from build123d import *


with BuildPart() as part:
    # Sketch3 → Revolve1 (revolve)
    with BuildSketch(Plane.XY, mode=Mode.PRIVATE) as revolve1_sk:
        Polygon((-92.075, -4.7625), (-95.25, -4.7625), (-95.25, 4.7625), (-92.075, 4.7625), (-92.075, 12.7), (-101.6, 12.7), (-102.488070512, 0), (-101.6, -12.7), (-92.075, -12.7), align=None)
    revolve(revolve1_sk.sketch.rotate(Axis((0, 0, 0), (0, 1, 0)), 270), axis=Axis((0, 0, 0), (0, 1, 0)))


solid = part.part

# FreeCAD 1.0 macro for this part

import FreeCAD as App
import Part
import Sketcher
Q = App.Units.Quantity

doc = App.newDocument("Part")
params = doc.addObject("Spreadsheet::Sheet", "Params")
for row, (alias, value) in enumerate([
    ("sketch1_width", "0.125 in"),
    ("sketch1_width2", "0.375 in"),
    ("revolution_angle", "360 deg"),
], start=1):
    params.set(f"A{row}", alias)
    params.set(f"B{row}", "=" + value)
    params.setAlias(f"B{row}", alias)

body = doc.addObject("PartDesign::Body", "Body")

sketch1 = body.newObject("Sketcher::SketchObject", "Sketch")
sketch1.AttachmentSupport = (doc.getObject("XY_Plane"), [""])
sketch1.MapMode = "FlatFace"
sketch1.addGeometry(Part.LineSegment(App.Vector(-92.075, -4.7625, 0), App.Vector(-95.25, -4.7625, 0)), False)
sketch1.addGeometry(Part.LineSegment(App.Vector(-95.25, -4.7625, 0), App.Vector(-95.25, 4.7625, 0)), False)
sketch1.addGeometry(Part.LineSegment(App.Vector(-95.25, 4.7625, 0), App.Vector(-92.075, 4.7625, 0)), False)
sketch1.addGeometry(Part.LineSegment(App.Vector(-92.075, 4.7625, 0), App.Vector(-92.075, 12.7, 0)), False)
sketch1.addGeometry(Part.LineSegment(App.Vector(-92.075, 12.7, 0), App.Vector(-101.6, 12.7, 0)), False)
sketch1.addGeometry(Part.LineSegment(App.Vector(-101.6, 12.7, 0), App.Vector(-102.488071, 0, 0)), False)
sketch1.addGeometry(Part.LineSegment(App.Vector(-102.488071, 0, 0), App.Vector(-101.6, -12.7, 0)), False)
sketch1.addGeometry(Part.LineSegment(App.Vector(-101.6, -12.7, 0), App.Vector(-92.075, -12.7, 0)), False)
sketch1.addGeometry(Part.LineSegment(App.Vector(-92.075, -12.7, 0), App.Vector(-92.075, -4.7625, 0)), False)
sketch1.addConstraint(Sketcher.Constraint("Coincident", 0, 2, 1, 1))
sketch1.addConstraint(Sketcher.Constraint("Coincident", 1, 2, 2, 1))
sketch1.addConstraint(Sketcher.Constraint("Coincident", 2, 2, 3, 1))
sketch1.addConstraint(Sketcher.Constraint("Coincident", 3, 2, 4, 1))
sketch1.addConstraint(Sketcher.Constraint("Coincident", 4, 2, 5, 1))
sketch1.addConstraint(Sketcher.Constraint("Coincident", 5, 2, 6, 1))
sketch1.addConstraint(Sketcher.Constraint("Coincident", 6, 2, 7, 1))
sketch1.addConstraint(Sketcher.Constraint("Coincident", 7, 2, 8, 1))
sketch1.addConstraint(Sketcher.Constraint("Coincident", 8, 2, 0, 1))
sketch1.addConstraint(Sketcher.Constraint("Horizontal", 0))
sketch1.addConstraint(Sketcher.Constraint("Vertical", 1))
sketch1.addConstraint(Sketcher.Constraint("Horizontal", 2))
sketch1.addConstraint(Sketcher.Constraint("Vertical", 3))
sketch1.addConstraint(Sketcher.Constraint("Horizontal", 4))
sketch1.addConstraint(Sketcher.Constraint("Horizontal", 7))
sketch1.addConstraint(Sketcher.Constraint("Vertical", 8))
sketch1.addConstraint(Sketcher.Constraint("Symmetric", 4, 2, 6, 2, -1))
sketch1.addConstraint(Sketcher.Constraint("Symmetric", 2, 2, 8, 2, -1))
sketch1.addConstraint(Sketcher.Constraint("PointOnObject", 5, 2, -1))
sketch1.addConstraint(Sketcher.Constraint("Equal", 7, 1))
sketch1.addConstraint(Sketcher.Constraint("DistanceX", 4, 2, -1, 1, Q("4 in")))
sketch1.addConstraint(Sketcher.Constraint("Angle", 5, Q("-94 deg")))
sketch1.addConstraint(Sketcher.Constraint("DistanceY", 6, 2, 4, 2, Q("1 in")))
sketch1.addConstraint(Sketcher.Constraint("DistanceX", 0, 2, 0, 1, Q("0.125 in")))
sketch1.addConstraint(Sketcher.Constraint("DistanceX", 4, 2, 4, 1, Q("0.375 in")))
sketch1.setExpression("Constraints[23]", "Params.sketch1_width")
sketch1.setExpression("Constraints[24]", "Params.sketch1_width2")
revolution = body.newObject("PartDesign::Revolution", "Revolution")
revolution.Profile = sketch1
revolution.ReferenceAxis = (sketch1, ["V_Axis"])
revolution.setExpression("Angle", "Params.revolution_angle")

doc.recompute()
